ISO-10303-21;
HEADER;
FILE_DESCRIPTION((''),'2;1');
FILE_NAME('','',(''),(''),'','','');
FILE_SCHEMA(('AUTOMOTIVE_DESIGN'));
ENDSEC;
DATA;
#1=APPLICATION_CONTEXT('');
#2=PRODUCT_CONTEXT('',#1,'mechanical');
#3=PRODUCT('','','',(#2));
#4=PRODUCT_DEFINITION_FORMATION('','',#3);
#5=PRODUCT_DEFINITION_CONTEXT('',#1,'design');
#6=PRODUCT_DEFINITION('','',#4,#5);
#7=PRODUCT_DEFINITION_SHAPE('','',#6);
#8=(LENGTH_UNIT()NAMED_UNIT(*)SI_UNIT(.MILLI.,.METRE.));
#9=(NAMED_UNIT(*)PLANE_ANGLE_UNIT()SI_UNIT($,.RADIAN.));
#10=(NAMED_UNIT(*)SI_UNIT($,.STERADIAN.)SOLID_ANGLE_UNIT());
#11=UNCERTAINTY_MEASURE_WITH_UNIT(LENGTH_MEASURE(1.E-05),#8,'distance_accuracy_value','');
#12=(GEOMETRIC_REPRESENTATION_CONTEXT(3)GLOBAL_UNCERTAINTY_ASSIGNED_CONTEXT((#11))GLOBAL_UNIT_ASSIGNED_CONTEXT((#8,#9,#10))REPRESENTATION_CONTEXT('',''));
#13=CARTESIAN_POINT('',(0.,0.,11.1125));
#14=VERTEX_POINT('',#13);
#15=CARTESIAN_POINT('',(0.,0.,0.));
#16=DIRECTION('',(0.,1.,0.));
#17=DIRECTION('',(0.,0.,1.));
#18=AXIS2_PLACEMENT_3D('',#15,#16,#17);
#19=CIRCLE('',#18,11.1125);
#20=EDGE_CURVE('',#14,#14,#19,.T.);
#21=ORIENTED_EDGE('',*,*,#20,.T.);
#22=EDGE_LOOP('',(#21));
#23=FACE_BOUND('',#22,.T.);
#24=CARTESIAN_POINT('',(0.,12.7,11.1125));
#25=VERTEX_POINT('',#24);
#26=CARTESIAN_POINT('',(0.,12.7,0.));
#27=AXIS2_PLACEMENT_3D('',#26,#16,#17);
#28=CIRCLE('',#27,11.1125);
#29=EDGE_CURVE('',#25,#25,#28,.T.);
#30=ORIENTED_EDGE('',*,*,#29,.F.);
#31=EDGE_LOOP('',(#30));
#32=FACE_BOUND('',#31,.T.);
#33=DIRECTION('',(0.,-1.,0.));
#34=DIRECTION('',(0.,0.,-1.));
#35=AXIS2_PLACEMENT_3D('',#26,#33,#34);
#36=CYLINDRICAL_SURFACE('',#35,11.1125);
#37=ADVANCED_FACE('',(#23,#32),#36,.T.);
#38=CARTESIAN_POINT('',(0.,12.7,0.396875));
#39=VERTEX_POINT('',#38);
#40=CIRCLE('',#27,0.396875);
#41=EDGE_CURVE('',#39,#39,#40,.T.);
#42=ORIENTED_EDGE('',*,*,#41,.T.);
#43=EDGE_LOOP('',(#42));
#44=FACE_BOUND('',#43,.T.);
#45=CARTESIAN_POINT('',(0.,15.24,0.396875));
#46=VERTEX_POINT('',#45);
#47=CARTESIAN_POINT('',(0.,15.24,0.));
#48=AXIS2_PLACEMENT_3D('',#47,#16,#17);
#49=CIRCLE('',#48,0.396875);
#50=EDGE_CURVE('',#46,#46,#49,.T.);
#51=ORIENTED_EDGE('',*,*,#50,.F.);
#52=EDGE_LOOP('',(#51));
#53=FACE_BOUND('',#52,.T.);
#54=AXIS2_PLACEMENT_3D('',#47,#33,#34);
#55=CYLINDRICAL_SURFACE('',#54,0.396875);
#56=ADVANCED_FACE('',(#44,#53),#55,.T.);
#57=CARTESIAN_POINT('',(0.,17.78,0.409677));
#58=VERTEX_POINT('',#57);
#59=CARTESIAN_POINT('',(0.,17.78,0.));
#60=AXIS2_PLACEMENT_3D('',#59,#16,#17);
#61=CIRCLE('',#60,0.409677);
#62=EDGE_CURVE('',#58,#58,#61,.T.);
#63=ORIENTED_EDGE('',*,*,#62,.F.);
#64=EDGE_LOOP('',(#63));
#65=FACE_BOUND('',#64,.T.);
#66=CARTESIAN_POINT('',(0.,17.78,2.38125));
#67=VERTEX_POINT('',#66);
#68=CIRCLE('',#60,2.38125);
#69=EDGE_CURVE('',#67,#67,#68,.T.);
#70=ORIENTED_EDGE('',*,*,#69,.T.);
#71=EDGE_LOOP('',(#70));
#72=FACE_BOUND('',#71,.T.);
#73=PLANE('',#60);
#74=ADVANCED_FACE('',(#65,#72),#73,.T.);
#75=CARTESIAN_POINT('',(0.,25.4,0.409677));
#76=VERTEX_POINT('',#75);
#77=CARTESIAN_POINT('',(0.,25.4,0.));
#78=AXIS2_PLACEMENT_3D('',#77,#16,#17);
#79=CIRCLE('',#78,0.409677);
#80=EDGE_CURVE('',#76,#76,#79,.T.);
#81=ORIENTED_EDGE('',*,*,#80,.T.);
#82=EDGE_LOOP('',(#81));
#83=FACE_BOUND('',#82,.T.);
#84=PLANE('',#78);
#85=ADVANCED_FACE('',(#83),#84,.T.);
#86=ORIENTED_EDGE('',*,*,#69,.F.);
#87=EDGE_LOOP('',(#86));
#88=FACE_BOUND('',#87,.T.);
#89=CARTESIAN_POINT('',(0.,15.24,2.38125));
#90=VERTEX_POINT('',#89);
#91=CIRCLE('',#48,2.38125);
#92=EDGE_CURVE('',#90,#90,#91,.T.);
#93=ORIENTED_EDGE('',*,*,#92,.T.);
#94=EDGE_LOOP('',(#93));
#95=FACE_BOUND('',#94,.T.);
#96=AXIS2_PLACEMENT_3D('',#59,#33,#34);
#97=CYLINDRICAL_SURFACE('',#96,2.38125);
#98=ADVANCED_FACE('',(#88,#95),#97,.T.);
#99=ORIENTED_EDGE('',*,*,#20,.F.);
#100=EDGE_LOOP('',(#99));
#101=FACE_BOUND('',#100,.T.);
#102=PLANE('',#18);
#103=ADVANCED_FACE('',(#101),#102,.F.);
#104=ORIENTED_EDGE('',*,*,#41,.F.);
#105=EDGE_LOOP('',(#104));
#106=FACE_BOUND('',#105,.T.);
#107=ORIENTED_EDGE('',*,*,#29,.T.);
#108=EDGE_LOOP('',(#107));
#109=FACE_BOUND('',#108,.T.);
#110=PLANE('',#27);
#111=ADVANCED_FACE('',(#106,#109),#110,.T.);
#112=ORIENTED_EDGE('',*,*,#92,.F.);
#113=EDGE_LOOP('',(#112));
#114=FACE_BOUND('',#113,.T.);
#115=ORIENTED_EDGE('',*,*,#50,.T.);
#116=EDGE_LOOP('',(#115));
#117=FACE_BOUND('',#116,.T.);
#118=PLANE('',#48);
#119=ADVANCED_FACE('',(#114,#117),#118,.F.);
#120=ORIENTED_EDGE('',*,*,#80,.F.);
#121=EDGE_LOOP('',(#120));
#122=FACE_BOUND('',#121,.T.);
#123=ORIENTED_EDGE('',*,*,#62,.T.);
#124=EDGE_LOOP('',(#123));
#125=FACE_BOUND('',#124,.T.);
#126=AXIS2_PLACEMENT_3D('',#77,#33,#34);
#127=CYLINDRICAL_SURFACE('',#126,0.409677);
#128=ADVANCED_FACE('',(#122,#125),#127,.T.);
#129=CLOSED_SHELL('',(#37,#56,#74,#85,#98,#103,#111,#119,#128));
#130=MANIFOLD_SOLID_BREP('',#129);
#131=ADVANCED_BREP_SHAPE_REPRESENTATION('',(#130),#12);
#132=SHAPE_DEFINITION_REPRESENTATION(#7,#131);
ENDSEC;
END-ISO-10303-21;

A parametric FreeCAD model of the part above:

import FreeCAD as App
import Part
import Sketcher
Q = App.Units.Quantity

doc = App.newDocument("Part")
body = doc.addObject("PartDesign::Body", "Body")

sketch1 = body.newObject("Sketcher::SketchObject", "Sketch")
sketch1.AttachmentSupport = (doc.getObject("XZ_Plane"), [""])
sketch1.MapMode = "FlatFace"
sketch1.addGeometry(Part.Circle(App.Vector(0, 0, 0), App.Vector(0, 0, 1), 11), False)
sketch1.addConstraint(Sketcher.Constraint("Coincident", 0, 3, -1, 1))
sketch1.addConstraint(Sketcher.Constraint("Diameter", 0, Q("0.875 in")))
pad1 = body.newObject("PartDesign::Pad", "Pad")
pad1.Profile = sketch1
pad1.Length = Q("0.5 in")
pad1.Reversed = True

sketch2 = body.newObject("Sketcher::SketchObject", "Sketch001")
sketch2.AttachmentSupport = (doc.getObject("XZ_Plane"), [""])
sketch2.MapMode = "FlatFace"
sketch2.AttachmentOffset = App.Placement(App.Vector(0, 0, -0.5 * 25.4), App.Rotation())
sketch2.addGeometry(Part.Circle(App.Vector(0, 0, 0), App.Vector(0, 0, 1), 0.4), False)
sketch2.addConstraint(Sketcher.Constraint("Coincident", 0, 3, -1, 1))
sketch2.addConstraint(Sketcher.Constraint("Diameter", 0, Q("0.03125 in")))
pad2 = body.newObject("PartDesign::Pad", "Pad001")
pad2.Profile = sketch2
pad2.Length = Q("0.1 in")
pad2.Reversed = True

sketch3 = body.newObject("Sketcher::SketchObject", "Sketch002")
sketch3.AttachmentSupport = (doc.getObject("XZ_Plane"), [""])
sketch3.MapMode = "FlatFace"
sketch3.AttachmentOffset = App.Placement(App.Vector(0, 0, -0.6 * 25.4), App.Rotation())
sketch3.addGeometry(Part.Circle(App.Vector(0, 0, 0), App.Vector(0, 0, 1), 2.4), False)
sketch3.addConstraint(Sketcher.Constraint("Coincident", 0, 3, -1, 1))
sketch3.addConstraint(Sketcher.Constraint("Diameter", 0, Q("0.1875 in")))
pad3 = body.newObject("PartDesign::Pad", "Pad002")
pad3.Profile = sketch3
pad3.Length = Q("0.1 in")
pad3.Reversed = True

sketch4 = body.newObject("Sketcher::SketchObject", "Sketch003")
sketch4.AttachmentSupport = (doc.getObject("XZ_Plane"), [""])
sketch4.MapMode = "FlatFace"
sketch4.AttachmentOffset = App.Placement(App.Vector(0, 0, -0.7 * 25.4), App.Rotation())
sketch4.addGeometry(Part.Circle(App.Vector(0, 0, 0), App.Vector(0, 0, 1), 0.41), False)
sketch4.addConstraint(Sketcher.Constraint("Coincident", 0, 3, -1, 1))
sketch4.addConstraint(Sketcher.Constraint("Diameter", 0, Q("0.819355 mm")))
pad4 = body.newObject("PartDesign::Pad", "Pad003")
pad4.Profile = sketch4
pad4.Length = Q("0.3 in")
pad4.Reversed = True

doc.recompute()
